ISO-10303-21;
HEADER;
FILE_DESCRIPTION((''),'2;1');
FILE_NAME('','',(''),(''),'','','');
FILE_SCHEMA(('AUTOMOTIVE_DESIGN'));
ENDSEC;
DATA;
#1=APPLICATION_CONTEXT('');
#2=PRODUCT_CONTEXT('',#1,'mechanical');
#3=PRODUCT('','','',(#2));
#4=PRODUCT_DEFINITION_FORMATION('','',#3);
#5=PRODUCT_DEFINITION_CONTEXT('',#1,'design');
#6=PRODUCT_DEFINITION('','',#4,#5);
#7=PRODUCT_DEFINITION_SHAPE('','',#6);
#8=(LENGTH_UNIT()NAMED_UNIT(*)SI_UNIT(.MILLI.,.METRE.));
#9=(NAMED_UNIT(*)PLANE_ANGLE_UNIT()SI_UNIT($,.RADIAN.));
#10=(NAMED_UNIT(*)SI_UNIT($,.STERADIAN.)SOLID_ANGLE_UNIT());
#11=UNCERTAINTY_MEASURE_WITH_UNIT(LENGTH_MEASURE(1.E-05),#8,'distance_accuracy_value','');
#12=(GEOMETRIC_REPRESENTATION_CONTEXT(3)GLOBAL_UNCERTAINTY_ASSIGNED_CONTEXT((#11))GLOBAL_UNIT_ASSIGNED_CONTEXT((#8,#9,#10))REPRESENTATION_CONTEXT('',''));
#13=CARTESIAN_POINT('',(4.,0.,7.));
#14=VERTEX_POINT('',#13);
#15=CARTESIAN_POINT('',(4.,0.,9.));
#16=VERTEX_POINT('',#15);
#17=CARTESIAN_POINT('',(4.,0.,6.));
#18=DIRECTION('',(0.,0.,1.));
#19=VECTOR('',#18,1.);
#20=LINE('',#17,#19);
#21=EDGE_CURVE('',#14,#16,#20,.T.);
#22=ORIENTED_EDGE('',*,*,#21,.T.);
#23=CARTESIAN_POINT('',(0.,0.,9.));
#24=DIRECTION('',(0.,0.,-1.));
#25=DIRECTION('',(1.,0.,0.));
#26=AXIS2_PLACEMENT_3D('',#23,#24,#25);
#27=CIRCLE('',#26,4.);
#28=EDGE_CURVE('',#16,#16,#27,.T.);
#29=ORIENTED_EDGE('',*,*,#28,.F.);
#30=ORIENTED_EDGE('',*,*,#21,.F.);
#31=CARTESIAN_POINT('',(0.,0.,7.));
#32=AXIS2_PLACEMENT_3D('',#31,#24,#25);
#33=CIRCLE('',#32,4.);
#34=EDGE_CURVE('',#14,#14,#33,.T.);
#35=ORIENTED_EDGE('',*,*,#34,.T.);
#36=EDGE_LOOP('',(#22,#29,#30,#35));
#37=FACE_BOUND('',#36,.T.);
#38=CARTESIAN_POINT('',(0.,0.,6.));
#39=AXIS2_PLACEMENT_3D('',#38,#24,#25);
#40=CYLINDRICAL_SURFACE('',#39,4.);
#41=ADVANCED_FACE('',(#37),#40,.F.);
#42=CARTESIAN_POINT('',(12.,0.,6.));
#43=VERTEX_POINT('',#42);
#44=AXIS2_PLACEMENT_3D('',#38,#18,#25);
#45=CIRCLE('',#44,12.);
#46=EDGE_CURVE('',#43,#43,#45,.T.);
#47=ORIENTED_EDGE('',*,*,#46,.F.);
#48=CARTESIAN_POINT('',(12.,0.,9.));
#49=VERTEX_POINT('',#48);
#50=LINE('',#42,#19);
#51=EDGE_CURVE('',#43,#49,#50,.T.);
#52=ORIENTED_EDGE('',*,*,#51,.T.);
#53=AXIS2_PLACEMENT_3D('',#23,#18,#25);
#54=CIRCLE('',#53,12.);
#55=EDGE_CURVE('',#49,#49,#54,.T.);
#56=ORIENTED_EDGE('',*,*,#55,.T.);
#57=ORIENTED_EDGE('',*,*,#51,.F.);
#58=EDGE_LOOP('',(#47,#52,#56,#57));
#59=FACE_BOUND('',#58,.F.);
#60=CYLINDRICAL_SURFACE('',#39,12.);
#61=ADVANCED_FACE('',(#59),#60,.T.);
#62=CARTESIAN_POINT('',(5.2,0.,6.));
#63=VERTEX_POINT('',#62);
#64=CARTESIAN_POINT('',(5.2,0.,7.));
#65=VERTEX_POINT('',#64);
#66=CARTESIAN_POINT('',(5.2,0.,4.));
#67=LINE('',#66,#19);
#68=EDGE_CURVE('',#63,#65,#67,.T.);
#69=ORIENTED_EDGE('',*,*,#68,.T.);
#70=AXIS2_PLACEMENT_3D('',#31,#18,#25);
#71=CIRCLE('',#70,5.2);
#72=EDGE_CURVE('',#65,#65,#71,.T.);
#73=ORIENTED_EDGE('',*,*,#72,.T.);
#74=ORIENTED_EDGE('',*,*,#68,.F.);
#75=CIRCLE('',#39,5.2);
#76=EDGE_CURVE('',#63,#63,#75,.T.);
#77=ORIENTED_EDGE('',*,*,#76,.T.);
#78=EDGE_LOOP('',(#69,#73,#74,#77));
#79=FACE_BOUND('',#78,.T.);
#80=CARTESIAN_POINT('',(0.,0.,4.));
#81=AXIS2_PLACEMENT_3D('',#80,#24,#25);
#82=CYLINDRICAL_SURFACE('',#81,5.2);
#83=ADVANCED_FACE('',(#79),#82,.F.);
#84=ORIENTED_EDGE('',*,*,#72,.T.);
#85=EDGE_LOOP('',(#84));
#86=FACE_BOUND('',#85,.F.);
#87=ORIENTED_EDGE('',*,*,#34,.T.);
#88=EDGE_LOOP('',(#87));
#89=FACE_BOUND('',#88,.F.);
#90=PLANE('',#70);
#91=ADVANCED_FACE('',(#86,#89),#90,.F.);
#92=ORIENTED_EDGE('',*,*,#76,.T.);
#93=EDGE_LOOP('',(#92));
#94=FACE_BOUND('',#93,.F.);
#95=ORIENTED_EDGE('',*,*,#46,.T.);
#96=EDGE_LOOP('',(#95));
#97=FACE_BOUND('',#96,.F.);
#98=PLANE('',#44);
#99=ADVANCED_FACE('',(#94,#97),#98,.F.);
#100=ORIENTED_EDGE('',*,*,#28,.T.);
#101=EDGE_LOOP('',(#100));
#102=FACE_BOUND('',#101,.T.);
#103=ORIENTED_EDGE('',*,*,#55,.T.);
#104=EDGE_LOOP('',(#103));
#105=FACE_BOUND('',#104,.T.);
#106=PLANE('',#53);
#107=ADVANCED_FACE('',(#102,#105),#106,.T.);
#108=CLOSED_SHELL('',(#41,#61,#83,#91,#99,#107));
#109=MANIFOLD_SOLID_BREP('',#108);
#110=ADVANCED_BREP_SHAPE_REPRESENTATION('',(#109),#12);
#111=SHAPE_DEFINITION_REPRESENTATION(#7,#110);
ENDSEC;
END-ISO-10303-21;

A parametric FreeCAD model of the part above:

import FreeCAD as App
import Part
import Sketcher

V = App.Vector

doc = App.newDocument("Part")
body = doc.addObject("PartDesign::Body", "Body")

sketch1 = body.newObject("Sketcher::SketchObject", "Sketch")
sketch1.AttachmentSupport = (doc.getObject("XY_Plane"), [""])
sketch1.MapMode = "FlatFace"
sketch1.addGeometry(Part.Circle(V(0, 0, 0), V(0, 0, 1), 4), False)
sketch1.addConstraint(Sketcher.Constraint("Coincident", 0, 3, -1, 1))
sketch1.addConstraint(Sketcher.Constraint("Diameter", 0, 8.0))
pad1 = body.newObject("PartDesign::Pad", "Pad")
pad1.Profile = sketch1
pad1.Length = 10
body2 = doc.addObject("PartDesign::Body", "Body001")

sketch2 = body2.newObject("Sketcher::SketchObject", "Sketch001")
sketch2.AttachmentSupport = (doc.getObject("XY_Plane001"), [""])
sketch2.MapMode = "FlatFace"
sketch2.AttachmentOffset = App.Placement(V(0, 0, -2), App.Rotation())
sketch2.addGeometry(Part.Circle(V(0, 0, 0), V(0, 0, 1), 5.2), False)
sketch2.addConstraint(Sketcher.Constraint("Coincident", 0, 3, -1, 1))
sketch2.addConstraint(Sketcher.Constraint("Diameter", 0, 10.4))
pad2 = body2.newObject("PartDesign::Pad", "Pad001")
pad2.Profile = sketch2
pad2.Length = 3
body3 = doc.addObject("PartDesign::Body", "Body002")

sketch3 = body3.newObject("Sketcher::SketchObject", "Sketch002")
sketch3.AttachmentSupport = (doc.getObject("XY_Plane002"), [""])
sketch3.MapMode = "FlatFace"
sketch3.addGeometry(Part.Circle(V(0, 0, 0), V(0, 0, 1), 12), False)
sketch3.addConstraint(Sketcher.Constraint("Coincident", 0, 3, -1, 1))
sketch3.addConstraint(Sketcher.Constraint("Diameter", 0, 24.0))
pad3 = body3.newObject("PartDesign::Pad", "Pad002")
pad3.Profile = sketch3
pad3.Length = 3
doc.recompute()

boolean = body3.newObject("PartDesign::Boolean", "Boolean")
boolean.Type = "Cut"
boolean.addObjects([body2])
doc.recompute()

boolean2 = body3.newObject("PartDesign::Boolean", "Boolean001")
boolean2.Type = "Cut"
boolean2.addObjects([body])
body4 = doc.addObject("PartDesign::Body", "Body003")
doc.recompute()

body3.Placement = App.Placement(V(0, 0, 6), App.Rotation(V(0, 0, 1), 0))
boolean3 = body4.newObject("PartDesign::Boolean", "Boolean002")
boolean3.Type = "Fuse"
boolean3.addObjects([body3])

doc.recompute()
